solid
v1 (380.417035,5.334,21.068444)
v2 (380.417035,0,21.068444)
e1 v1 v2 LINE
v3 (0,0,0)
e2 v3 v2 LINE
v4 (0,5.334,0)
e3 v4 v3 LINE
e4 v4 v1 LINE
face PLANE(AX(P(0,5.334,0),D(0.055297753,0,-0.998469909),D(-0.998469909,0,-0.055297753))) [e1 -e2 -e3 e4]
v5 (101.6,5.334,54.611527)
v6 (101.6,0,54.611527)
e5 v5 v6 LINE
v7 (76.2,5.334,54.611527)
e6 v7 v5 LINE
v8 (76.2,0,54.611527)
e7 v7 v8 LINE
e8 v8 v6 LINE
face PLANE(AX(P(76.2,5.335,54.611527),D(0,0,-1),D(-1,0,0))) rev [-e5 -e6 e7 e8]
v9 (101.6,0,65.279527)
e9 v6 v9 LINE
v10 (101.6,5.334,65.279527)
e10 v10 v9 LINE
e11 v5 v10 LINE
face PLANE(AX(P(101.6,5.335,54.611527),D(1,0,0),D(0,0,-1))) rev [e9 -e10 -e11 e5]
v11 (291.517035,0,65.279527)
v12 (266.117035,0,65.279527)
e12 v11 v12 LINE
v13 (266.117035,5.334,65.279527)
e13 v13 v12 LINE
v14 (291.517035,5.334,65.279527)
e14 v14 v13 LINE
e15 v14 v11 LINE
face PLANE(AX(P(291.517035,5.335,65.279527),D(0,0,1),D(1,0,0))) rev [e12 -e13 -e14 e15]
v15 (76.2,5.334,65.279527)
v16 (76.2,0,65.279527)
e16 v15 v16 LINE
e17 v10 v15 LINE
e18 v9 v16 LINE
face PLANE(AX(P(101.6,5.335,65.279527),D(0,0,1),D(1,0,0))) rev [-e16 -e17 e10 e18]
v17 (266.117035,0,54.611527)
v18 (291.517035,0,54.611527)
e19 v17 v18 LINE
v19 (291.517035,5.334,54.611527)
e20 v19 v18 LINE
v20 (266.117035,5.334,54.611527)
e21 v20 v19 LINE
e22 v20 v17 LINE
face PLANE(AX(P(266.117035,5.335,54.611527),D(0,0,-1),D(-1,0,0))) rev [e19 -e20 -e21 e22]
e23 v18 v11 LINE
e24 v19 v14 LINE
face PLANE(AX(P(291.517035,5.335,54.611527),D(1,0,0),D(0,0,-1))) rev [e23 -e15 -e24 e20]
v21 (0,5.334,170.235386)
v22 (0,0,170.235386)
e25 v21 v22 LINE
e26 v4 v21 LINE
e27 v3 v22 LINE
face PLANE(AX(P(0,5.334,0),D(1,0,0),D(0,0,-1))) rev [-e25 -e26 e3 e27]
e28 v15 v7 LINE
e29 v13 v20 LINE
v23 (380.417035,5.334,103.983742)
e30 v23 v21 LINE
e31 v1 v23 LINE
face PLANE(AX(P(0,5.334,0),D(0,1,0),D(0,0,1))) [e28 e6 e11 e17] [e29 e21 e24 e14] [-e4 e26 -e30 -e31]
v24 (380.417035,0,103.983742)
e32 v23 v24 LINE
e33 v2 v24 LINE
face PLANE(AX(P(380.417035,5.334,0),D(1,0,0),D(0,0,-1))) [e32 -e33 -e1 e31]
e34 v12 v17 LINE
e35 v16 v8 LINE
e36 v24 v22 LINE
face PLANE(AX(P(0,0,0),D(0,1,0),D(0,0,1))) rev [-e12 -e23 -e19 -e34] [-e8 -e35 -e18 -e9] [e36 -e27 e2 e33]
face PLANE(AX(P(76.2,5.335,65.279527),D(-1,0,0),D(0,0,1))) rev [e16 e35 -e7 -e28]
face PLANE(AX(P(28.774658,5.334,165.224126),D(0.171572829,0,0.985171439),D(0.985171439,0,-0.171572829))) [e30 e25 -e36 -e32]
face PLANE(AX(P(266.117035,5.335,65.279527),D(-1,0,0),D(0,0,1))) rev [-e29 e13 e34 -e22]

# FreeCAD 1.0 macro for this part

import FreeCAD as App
import Part
import Sketcher

V = App.Vector
Q = App.Units.Quantity

doc = App.newDocument("Part")
body = doc.addObject("PartDesign::Body", "Body")

sketch1 = body.newObject("Sketcher::SketchObject", "Sketch")
sketch1.AttachmentSupport = (doc.getObject("XZ_Plane"), [""])
sketch1.MapMode = "FlatFace"
sketch1.addGeometry(Part.LineSegment(V(380, 21, 0), V(0, 0, 0)), False)
sketch1.addGeometry(Part.LineSegment(V(0, 0, 0), V(0, 170, 0)), False)
sketch1.addGeometry(Part.LineSegment(V(0, 170, 0), V(380, 104, 0)), False)
sketch1.addGeometry(Part.LineSegment(V(380, 104, 0), V(380, 21, 0)), False)
sketch1.addConstraint(Sketcher.Constraint("Coincident", 0, 2, 1, 1))
sketch1.addConstraint(Sketcher.Constraint("Coincident", 1, 2, 2, 1))
sketch1.addConstraint(Sketcher.Constraint("Coincident", 2, 2, 3, 1))
sketch1.addConstraint(Sketcher.Constraint("Coincident", 3, 2, 0, 1))
sketch1.addConstraint(Sketcher.Constraint("Vertical", 1))
sketch1.addConstraint(Sketcher.Constraint("Vertical", 3))
sketch1.addConstraint(Sketcher.Constraint("Coincident", 0, 2, -1, 1))
sketch1.addConstraint(Sketcher.Constraint("Distance", 0, Q("15 in")))
sketch1.addConstraint(Sketcher.Constraint("DistanceY", 3, 2, 3, 1, Q("82.915298 mm")))
sketch1.addConstraint(Sketcher.Constraint("Distance", 2, Q("386.14298 mm")))
sketch1.addConstraint(Sketcher.Constraint("DistanceY", 1, 1, 1, 2, Q("170.235386 mm")))
pad1 = body.newObject("PartDesign::Pad", "Pad")
pad1.Profile = sketch1
pad1.Length = Q("0.21 in")
pad1.Reversed = True

sketch2 = body.newObject("Sketcher::SketchObject", "Sketch001")
sketch2.AttachmentSupport = (doc.getObject("XZ_Plane"), [""])
sketch2.MapMode = "FlatFace"
sketch2.addGeometry(Part.LineSegment(V(266, 65, 0), V(266, 55, 0)), False)
sketch2.addGeometry(Part.LineSegment(V(266, 55, 0), V(292, 55, 0)), False)
sketch2.addGeometry(Part.LineSegment(V(292, 55, 0), V(292, 65, 0)), False)
sketch2.addGeometry(Part.LineSegment(V(292, 65, 0), V(266, 65, 0)), False)
sketch2.addConstraint(Sketcher.Constraint("Coincident", 0, 2, 1, 1))
sketch2.addConstraint(Sketcher.Constraint("Coincident", 1, 2, 2, 1))
sketch2.addConstraint(Sketcher.Constraint("Coincident", 2, 2, 3, 1))
sketch2.addConstraint(Sketcher.Constraint("Coincident", 3, 2, 0, 1))
sketch2.addConstraint(Sketcher.Constraint("Vertical", 0))
sketch2.addConstraint(Sketcher.Constraint("Horizontal", 1))
sketch2.addConstraint(Sketcher.Constraint("Vertical", 2))
sketch2.addConstraint(Sketcher.Constraint("Horizontal", 3))
sketch2.addConstraint(Sketcher.Constraint("DistanceX", 1, 1, 1, 2, Q("1 in")))
sketch2.addConstraint(Sketcher.Constraint("DistanceY", 0, 2, 0, 1, Q("0.42 in")))
sketch2.addConstraint(Sketcher.Constraint("DistanceX", -1, 1, 0, 2, Q("266.117035 mm")))
sketch2.addConstraint(Sketcher.Constraint("DistanceY", -1, 1, 0, 2, Q("54.611527 mm")))
pocket1 = body.newObject("PartDesign::Pocket", "Pocket")
pocket1.Profile = sketch2
pocket1.Type = "UpToFirst"

sketch3 = body.newObject("Sketcher::SketchObject", "Sketch002")
sketch3.AttachmentSupport = (doc.getObject("XZ_Plane"), [""])
sketch3.MapMode = "FlatFace"
sketch3.addGeometry(Part.LineSegment(V(76, 65, 0), V(76, 55, 0)), False)
sketch3.addGeometry(Part.LineSegment(V(76, 55, 0), V(102, 55, 0)), False)
sketch3.addGeometry(Part.LineSegment(V(102, 55, 0), V(102, 65, 0)), False)
sketch3.addGeometry(Part.LineSegment(V(102, 65, 0), V(76, 65, 0)), False)
sketch3.addConstraint(Sketcher.Constraint("Coincident", 0, 2, 1, 1))
sketch3.addConstraint(Sketcher.Constraint("Coincident", 1, 2, 2, 1))
sketch3.addConstraint(Sketcher.Constraint("Coincident", 2, 2, 3, 1))
sketch3.addConstraint(Sketcher.Constraint("Coincident", 3, 2, 0, 1))
sketch3.addConstraint(Sketcher.Constraint("Vertical", 0))
sketch3.addConstraint(Sketcher.Constraint("Horizontal", 1))
sketch3.addConstraint(Sketcher.Constraint("Vertical", 2))
sketch3.addConstraint(Sketcher.Constraint("Horizontal", 3))
sketch3.addConstraint(Sketcher.Constraint("DistanceX", 1, 1, 1, 2, Q("1 in")))
sketch3.addConstraint(Sketcher.Constraint("DistanceX", -1, 1, 0, 2, Q("3 in")))
sketch3.addConstraint(Sketcher.Constraint("DistanceY", 0, 2, 0, 1, Q("0.42 in")))
sketch3.addConstraint(Sketcher.Constraint("DistanceY", -1, 1, 0, 2, Q("54.611527 mm")))
pocket2 = body.newObject("PartDesign::Pocket", "Pocket001")
pocket2.Profile = sketch3
pocket2.Type = "UpToFirst"

doc.recompute()
